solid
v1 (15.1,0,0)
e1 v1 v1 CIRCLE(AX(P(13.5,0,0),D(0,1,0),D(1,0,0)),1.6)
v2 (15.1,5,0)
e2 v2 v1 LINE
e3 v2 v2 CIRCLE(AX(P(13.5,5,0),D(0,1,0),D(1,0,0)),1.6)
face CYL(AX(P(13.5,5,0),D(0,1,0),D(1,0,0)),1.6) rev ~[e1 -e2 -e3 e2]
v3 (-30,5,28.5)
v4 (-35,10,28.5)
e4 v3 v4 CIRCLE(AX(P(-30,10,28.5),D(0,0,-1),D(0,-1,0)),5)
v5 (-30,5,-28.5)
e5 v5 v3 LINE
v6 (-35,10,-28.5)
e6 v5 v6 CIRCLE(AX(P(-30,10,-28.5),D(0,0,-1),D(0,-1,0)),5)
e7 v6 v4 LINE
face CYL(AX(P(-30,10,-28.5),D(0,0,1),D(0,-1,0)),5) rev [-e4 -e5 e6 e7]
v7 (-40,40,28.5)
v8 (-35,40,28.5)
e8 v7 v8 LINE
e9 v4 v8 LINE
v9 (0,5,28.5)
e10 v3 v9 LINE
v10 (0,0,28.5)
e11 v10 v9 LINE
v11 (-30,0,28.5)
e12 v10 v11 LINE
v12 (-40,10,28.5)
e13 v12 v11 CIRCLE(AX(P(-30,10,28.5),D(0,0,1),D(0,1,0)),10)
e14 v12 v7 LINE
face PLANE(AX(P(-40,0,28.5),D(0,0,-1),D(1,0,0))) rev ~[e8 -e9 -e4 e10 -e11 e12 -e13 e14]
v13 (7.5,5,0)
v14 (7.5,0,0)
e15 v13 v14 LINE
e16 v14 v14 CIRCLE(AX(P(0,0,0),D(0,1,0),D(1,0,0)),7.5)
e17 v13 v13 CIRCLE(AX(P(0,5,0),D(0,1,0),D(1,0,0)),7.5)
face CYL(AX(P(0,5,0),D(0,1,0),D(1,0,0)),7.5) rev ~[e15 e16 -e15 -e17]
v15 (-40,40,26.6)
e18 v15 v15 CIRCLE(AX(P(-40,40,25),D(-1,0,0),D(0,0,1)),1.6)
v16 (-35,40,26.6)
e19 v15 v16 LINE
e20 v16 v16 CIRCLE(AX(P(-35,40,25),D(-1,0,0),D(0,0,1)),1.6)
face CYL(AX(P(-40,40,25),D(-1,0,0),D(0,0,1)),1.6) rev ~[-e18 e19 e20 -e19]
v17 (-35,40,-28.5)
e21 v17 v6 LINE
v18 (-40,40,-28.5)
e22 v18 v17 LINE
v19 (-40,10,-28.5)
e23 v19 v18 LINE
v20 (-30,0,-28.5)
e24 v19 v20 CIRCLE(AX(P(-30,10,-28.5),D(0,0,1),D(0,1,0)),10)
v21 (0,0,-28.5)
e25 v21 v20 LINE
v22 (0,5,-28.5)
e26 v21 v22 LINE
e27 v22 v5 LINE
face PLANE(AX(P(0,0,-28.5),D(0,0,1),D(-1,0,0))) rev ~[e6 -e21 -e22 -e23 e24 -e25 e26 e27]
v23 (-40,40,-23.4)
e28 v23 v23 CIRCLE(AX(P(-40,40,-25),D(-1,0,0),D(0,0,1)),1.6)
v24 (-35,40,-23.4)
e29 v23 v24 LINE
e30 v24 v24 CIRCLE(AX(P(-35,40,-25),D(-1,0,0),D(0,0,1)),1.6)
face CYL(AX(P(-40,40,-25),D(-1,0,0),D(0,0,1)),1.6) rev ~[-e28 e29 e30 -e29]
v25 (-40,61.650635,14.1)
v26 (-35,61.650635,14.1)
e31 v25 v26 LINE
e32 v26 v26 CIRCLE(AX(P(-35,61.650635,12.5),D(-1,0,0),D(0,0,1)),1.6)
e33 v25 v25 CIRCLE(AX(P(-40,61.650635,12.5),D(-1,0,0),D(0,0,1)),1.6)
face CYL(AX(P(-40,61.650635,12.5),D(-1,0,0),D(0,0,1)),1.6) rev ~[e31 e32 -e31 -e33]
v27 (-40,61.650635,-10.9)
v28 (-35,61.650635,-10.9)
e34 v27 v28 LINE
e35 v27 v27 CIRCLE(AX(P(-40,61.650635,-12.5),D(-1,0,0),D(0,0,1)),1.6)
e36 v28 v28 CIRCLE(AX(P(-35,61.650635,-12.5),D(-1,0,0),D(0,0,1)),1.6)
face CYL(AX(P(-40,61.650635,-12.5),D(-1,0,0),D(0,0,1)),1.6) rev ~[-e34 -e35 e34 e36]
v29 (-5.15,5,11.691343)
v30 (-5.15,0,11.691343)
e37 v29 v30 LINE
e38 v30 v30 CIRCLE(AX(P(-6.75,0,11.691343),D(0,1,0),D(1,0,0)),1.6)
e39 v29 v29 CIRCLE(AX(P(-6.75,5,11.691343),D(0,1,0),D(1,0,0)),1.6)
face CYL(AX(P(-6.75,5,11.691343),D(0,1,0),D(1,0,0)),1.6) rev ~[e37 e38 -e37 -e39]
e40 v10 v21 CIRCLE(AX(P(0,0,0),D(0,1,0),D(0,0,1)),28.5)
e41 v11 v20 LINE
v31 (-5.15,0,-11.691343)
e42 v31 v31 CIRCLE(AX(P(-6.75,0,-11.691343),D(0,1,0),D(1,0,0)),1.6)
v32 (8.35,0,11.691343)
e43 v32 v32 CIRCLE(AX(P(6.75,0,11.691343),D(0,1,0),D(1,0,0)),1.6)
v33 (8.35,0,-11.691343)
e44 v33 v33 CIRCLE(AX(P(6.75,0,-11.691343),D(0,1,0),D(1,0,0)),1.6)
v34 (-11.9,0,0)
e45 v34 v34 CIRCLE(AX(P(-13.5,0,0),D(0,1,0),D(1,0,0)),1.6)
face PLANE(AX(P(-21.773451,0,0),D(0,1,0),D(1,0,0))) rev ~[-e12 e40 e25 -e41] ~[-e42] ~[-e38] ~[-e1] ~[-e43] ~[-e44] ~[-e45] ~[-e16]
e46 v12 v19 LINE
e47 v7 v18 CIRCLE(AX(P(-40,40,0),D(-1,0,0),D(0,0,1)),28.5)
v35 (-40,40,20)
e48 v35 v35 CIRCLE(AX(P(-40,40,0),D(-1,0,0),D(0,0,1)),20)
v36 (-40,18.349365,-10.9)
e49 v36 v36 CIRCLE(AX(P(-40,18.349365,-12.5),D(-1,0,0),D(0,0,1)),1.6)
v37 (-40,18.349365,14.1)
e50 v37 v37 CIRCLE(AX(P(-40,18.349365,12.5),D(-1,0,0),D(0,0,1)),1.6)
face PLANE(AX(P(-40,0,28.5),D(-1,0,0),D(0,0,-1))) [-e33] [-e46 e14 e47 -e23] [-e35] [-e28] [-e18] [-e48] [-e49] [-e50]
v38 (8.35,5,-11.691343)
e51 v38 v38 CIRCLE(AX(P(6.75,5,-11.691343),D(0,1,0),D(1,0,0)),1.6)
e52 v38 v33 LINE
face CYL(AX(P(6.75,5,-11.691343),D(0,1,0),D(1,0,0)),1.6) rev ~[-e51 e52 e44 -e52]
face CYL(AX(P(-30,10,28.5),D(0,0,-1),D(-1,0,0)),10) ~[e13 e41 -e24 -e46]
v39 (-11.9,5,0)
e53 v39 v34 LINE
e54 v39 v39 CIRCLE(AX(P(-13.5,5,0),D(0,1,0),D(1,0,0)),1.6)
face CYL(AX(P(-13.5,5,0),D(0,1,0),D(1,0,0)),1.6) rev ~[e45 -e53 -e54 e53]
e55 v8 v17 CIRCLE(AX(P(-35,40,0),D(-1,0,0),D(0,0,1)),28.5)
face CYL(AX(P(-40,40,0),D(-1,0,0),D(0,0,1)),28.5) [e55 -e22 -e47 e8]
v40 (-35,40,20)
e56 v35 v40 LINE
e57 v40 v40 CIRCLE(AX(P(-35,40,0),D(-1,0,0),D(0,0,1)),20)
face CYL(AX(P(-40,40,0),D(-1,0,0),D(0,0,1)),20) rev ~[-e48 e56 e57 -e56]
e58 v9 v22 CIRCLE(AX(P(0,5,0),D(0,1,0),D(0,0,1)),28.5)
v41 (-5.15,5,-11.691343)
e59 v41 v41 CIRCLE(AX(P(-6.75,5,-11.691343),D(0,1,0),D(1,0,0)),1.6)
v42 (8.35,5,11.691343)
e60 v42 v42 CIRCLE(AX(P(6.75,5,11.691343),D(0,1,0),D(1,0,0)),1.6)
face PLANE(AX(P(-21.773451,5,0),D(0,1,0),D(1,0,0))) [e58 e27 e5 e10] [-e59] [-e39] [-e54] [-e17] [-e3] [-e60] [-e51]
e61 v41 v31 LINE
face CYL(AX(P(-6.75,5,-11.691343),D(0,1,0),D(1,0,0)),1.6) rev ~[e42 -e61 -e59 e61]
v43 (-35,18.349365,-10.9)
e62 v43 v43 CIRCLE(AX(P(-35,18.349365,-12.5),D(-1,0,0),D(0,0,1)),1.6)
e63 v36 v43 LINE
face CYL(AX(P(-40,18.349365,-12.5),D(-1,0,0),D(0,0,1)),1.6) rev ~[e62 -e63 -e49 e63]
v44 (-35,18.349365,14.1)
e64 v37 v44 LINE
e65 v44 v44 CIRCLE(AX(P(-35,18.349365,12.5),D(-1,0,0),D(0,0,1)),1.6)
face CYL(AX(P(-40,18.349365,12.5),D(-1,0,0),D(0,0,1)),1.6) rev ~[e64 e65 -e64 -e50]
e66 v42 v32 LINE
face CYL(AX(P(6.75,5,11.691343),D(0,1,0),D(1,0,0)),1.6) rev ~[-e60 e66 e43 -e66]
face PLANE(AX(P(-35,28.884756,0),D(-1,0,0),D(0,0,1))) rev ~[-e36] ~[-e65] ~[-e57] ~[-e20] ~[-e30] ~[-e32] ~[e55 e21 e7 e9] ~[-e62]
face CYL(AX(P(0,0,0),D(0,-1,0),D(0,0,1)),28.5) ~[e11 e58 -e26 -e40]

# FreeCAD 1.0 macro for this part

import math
import FreeCAD as App
import Part
import Sketcher


def edges_at(feature, points):
    """Names of the edges that pass closest to the given points."""
    edges = feature.Shape.Edges
    near = lambda p: min(range(len(edges)), key=lambda i: edges[i].distToShape(Part.Vertex(*p))[0])
    return sorted({f"Edge{near(p) + 1}" for p in points})

doc = App.newDocument("Part")
body = doc.addObject("PartDesign::Body", "Body")

sketch1 = doc.addObject("Sketcher::SketchObject", "Sketch")
body.addObject(sketch1)
sketch1.AttachmentSupport = (doc.XZ_Plane, [""])
sketch1.MapMode = "FlatFace"
sketch1.addGeometry([
    Part.LineSegment(App.Vector(0, -28, 0), App.Vector(-40, -28, 0)),
    Part.LineSegment(App.Vector(-40, -28, 0), App.Vector(-40, 28, 0)),
    Part.LineSegment(App.Vector(-40, 28, 0), App.Vector(0, 28, 0)),
    Part.ArcOfCircle(Part.Circle(App.Vector(0, 0, 0), App.Vector(0, 0, 1), 28), math.radians(-90), math.radians(90)),
], False)
sketch1.addConstraint([
    Sketcher.Constraint("Coincident", 0, 2, 1, 1),
    Sketcher.Constraint("Coincident", 1, 2, 2, 1),
    Sketcher.Constraint("Tangent", 2, 2, 3, 2),
    Sketcher.Constraint("Tangent", 3, 1, 0, 1),
    Sketcher.Constraint("Horizontal", 0),
    Sketcher.Constraint("Vertical", 1),
    Sketcher.Constraint("Horizontal", 2),
    Sketcher.Constraint("Coincident", 3, 3, -1, 1),
    Sketcher.Constraint("Radius", 3, 28.5),
    Sketcher.Constraint("DistanceX", 0, 2, 0, 1, 40.0),
])
pad1 = doc.addObject("PartDesign::Pad", "Pad")
body.addObject(pad1)
pad1.Profile = sketch1
pad1.Length = 5
pad1.Reversed = True

sketch2 = doc.addObject("Sketcher::SketchObject", "Sketch001")
body.addObject(sketch2)
sketch2.AttachmentSupport = (doc.YZ_Plane, [""])
sketch2.MapMode = "FlatFace"
sketch2.AttachmentOffset = App.Placement(App.Vector(0, 0, -40), App.Rotation())
sketch2.addGeometry([
    Part.LineSegment(App.Vector(0, 28.5, 0), App.Vector(40, 28.5, 0)),
    Part.ArcOfCircle(Part.Circle(App.Vector(40, 0, 0), App.Vector(0, 0, 1), 28.5), math.radians(-90), math.radians(90)),
    Part.LineSegment(App.Vector(40, -28.5, 0), App.Vector(0, -28.5, 0)),
    Part.LineSegment(App.Vector(0, -28.5, 0), App.Vector(0, 28.5, 0)),
    Part.Circle(App.Vector(18.3, -12.5, 0), App.Vector(0, 0, 1), 1.6),
    Part.Circle(App.Vector(18.3, 12.5, 0), App.Vector(0, 0, 1), 1.6),
    Part.Circle(App.Vector(40, -25, 0), App.Vector(0, 0, 1), 1.6),
    Part.Circle(App.Vector(61.7, -12.5, 0), App.Vector(0, 0, 1), 1.6),
    Part.Circle(App.Vector(40, 0, 0), App.Vector(0, 0, 1), 20),
    Part.Circle(App.Vector(40, 25, 0), App.Vector(0, 0, 1), 1.6),
    Part.Circle(App.Vector(61.7, 12.5, 0), App.Vector(0, 0, 1), 1.6),
], False)
sketch2.addConstraint([
    Sketcher.Constraint("Tangent", 0, 2, 1, 2),
    Sketcher.Constraint("Tangent", 1, 1, 2, 1),
    Sketcher.Constraint("Coincident", 2, 2, 3, 1),
    Sketcher.Constraint("Coincident", 3, 2, 0, 1),
    Sketcher.Constraint("Horizontal", 0),
    Sketcher.Constraint("Horizontal", 2),
    Sketcher.Constraint("Vertical", 3),
    Sketcher.Constraint("Coincident", 8, 3, 1, 3),
    Sketcher.Constraint("Equal", 4, 5),
    Sketcher.Constraint("Equal", 5, 6),
    Sketcher.Constraint("Equal", 6, 7),
    Sketcher.Constraint("Equal", 7, 9),
    Sketcher.Constraint("Equal", 9, 10),
    Sketcher.Constraint("Symmetric", 2, 2, 3, 2, -1, 1),
    Sketcher.Constraint("Symmetric", 4, 3, 5, 3, -1),
    Sketcher.Constraint("Symmetric", 6, 3, 9, 3, -1),
    Sketcher.Constraint("Symmetric", 7, 3, 10, 3, -1),
    Sketcher.Constraint("Horizontal", 4, 3, 7, 3),
    Sketcher.Constraint("Vertical", 1, 3, 6, 3),
    Sketcher.Constraint("Diameter", 8, 40.0),
    Sketcher.Constraint("Diameter", 4, 3.2),
    Sketcher.Constraint("Radius", 1, 28.5),
    Sketcher.Constraint("DistanceX", 0, 1, 0, 2, 40.0),
    Sketcher.Constraint("DistanceY", 6, 3, -1, 1, 25.0),
    Sketcher.Constraint("DistanceY", 4, 3, 5, 3, 25.0),
    Sketcher.Constraint("DistanceX", 4, 3, 7, 3, 43.30127),
    Sketcher.Constraint("DistanceX", -1, 1, 4, 3, 18.349365),
])
pad2 = doc.addObject("PartDesign::Pad", "Pad001")
body.addObject(pad2)
pad2.Profile = sketch2
pad2.Length = 5
doc.recompute()

fillet = doc.addObject("PartDesign::Fillet", "Fillet")
body.addObject(fillet)
fillet.Base = (pad2, edges_at(pad2, [(-40, 0, 0)]))
fillet.Radius = 10
doc.recompute()

fillet2 = doc.addObject("PartDesign::Fillet", "Fillet001")
body.addObject(fillet2)
fillet2.Base = (fillet, edges_at(fillet, [(-35, 5, 0)]))
fillet2.Radius = 5

sketch3 = doc.addObject("Sketcher::SketchObject", "Sketch002")
body.addObject(sketch3)
sketch3.AttachmentSupport = (doc.XZ_Plane, [""])
sketch3.MapMode = "FlatFace"
sketch3.AttachmentOffset = App.Placement(App.Vector(0, 0, -5), App.Rotation())
sketch3.addGeometry([
    Part.Circle(App.Vector(13.5, 0, 0), App.Vector(0, 0, 1), 1.6),
    Part.Circle(App.Vector(6.8, 11.7, 0), App.Vector(0, 0, 1), 1.6),
    Part.Circle(App.Vector(-6.8, 11.7, 0), App.Vector(0, 0, 1), 1.6),
    Part.Circle(App.Vector(-13.5, 0, 0), App.Vector(0, 0, 1), 1.6),
    Part.Circle(App.Vector(-6.8, -11.7, 0), App.Vector(0, 0, 1), 1.6),
    Part.Circle(App.Vector(6.8, -11.7, 0), App.Vector(0, 0, 1), 1.6),
    Part.Circle(App.Vector(0, 0, 0), App.Vector(0, 0, 1), 7.5),
], False)
sketch3.addConstraint([
    Sketcher.Constraint("Coincident", 6, 3, -1, 1),
    Sketcher.Constraint("Equal", 0, 1),
    Sketcher.Constraint("Equal", 1, 2),
    Sketcher.Constraint("Equal", 2, 3),
    Sketcher.Constraint("Equal", 3, 4),
    Sketcher.Constraint("Equal", 4, 5),
    Sketcher.Constraint("Symmetric", 0, 3, 3, 3, -1, 1),
    Sketcher.Constraint("Symmetric", 1, 3, 4, 3, -1, 1),
    Sketcher.Constraint("Symmetric", 2, 3, 5, 3, -1, 1),
    Sketcher.Constraint("Symmetric", 1, 3, 2, 3, -2),
    Sketcher.Constraint("PointOnObject", 0, 3, -1),
    Sketcher.Constraint("Diameter", 6, 15.0),
    Sketcher.Constraint("Diameter", 0, 3.2),
    Sketcher.Constraint("DistanceX", 3, 3, 0, 3, 27.0),
    Sketcher.Constraint("DistanceX", 2, 3, 1, 3, 13.5),
    Sketcher.Constraint("DistanceY", -1, 1, 1, 3, 11.691343),
])
pocket1 = doc.addObject("PartDesign::Pocket", "Pocket")
body.addObject(pocket1)
pocket1.Profile = sketch3
pocket1.Length = 5
pocket1.Reversed = True

doc.recompute()
